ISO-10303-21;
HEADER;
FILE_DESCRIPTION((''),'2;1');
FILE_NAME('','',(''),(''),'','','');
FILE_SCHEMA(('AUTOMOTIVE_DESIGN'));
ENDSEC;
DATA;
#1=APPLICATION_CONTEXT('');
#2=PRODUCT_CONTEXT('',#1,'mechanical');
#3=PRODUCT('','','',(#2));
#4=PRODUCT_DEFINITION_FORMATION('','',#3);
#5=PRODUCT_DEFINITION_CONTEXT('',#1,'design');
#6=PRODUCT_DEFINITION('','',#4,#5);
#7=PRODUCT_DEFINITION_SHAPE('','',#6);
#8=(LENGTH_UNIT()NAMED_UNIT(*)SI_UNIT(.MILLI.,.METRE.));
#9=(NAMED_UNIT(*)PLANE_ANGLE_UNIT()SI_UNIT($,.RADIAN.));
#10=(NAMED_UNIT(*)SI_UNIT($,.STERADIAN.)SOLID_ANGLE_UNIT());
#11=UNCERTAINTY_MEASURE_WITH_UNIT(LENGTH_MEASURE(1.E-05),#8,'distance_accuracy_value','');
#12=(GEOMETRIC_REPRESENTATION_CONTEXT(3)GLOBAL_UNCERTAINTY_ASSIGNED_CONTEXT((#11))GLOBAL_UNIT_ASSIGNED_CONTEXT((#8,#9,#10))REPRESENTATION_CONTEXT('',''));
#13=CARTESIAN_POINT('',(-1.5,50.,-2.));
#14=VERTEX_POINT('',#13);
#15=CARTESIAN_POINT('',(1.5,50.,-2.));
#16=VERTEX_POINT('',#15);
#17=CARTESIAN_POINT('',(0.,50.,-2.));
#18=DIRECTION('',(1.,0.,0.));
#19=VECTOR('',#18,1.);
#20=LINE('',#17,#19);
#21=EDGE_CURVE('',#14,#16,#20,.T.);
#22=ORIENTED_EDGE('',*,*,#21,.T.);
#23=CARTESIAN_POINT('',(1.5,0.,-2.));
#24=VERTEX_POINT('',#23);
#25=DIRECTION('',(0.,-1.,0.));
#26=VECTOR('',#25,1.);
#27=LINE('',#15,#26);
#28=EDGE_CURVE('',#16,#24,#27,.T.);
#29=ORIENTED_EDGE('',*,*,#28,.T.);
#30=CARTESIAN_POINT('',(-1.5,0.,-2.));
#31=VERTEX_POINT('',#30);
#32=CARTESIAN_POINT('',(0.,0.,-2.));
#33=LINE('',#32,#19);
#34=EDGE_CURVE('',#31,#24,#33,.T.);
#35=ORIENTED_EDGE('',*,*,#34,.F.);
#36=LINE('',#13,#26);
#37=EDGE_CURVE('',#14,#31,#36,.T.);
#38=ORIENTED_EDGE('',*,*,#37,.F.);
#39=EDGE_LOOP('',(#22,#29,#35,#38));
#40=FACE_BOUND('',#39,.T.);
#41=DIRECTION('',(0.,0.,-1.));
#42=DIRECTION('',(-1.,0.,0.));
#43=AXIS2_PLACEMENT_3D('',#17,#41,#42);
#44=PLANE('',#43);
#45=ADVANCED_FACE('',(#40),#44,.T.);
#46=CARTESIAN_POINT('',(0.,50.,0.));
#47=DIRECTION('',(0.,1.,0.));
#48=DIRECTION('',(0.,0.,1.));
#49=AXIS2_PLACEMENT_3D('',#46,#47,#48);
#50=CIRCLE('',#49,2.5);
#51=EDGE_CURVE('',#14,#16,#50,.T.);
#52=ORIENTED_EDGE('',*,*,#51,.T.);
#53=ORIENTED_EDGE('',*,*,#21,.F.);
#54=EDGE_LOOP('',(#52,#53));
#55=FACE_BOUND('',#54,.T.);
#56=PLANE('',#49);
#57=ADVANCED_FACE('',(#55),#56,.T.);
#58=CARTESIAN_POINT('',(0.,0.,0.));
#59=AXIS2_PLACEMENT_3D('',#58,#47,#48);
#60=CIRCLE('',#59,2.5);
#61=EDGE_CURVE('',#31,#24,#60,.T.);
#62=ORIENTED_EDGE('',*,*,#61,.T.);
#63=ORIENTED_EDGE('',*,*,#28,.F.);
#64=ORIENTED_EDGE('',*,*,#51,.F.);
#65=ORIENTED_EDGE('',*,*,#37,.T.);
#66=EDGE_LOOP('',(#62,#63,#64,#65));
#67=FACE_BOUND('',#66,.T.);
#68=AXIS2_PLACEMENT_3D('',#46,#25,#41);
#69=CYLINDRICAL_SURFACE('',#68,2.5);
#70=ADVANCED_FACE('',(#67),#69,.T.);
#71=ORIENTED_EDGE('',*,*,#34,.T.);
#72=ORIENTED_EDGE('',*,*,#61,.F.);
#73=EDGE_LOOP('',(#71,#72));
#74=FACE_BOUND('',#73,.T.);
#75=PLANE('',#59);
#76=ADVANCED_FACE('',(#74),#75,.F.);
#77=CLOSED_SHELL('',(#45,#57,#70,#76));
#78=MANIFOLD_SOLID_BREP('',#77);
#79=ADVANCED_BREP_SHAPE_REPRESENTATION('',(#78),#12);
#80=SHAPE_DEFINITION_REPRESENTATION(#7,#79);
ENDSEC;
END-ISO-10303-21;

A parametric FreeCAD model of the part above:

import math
import FreeCAD as App
import Part
import Sketcher

V = App.Vector
Q = App.Units.Quantity

doc = App.newDocument("Part")
params = doc.addObject("Spreadsheet::Sheet", "Params")
for row, (alias, value) in enumerate([
    ("sketch1_radius", "2.5 mm"),
    ("sketch1_width", "3 mm"),
    ("pad1_length", "50 mm"),
], start=1):
    params.set(f"A{row}", alias)
    params.set(f"B{row}", "=" + value)
    params.setAlias(f"B{row}", alias)

body = doc.addObject("PartDesign::Body", "Body")

# Sketch on XZ plane
sketch1 = body.newObject("Sketcher::SketchObject", "Sketch")
sketch1.AttachmentSupport = (doc.getObject("XZ_Plane"), [""])
sketch1.MapMode = "FlatFace"
sketch1.addGeometry([
    Part.ArcOfCircle(Part.Circle(V(0, 0, 0), V(0, 0, 1), 2.5), math.radians(90), math.radians(233.130102)),
    Part.ArcOfCircle(Part.Circle(V(0, 0, 0), V(0, 0, 1), 2.5), math.radians(0), math.radians(90)),
    Part.ArcOfCircle(Part.Circle(V(0, 0, 0), V(0, 0, 1), 2.5), math.radians(-53.130102), math.radians(0)),
    Part.LineSegment(V(1.5, -2, 0), V(-1.5, -2, 0)),
], False)
sketch1.addConstraint([
    Sketcher.Constraint("Tangent", 0, 1, 1, 2),
    Sketcher.Constraint("Tangent", 1, 1, 2, 2),
    Sketcher.Constraint("Coincident", 2, 1, 3, 1),
    Sketcher.Constraint("Coincident", 3, 2, 0, 2),
    Sketcher.Constraint("Horizontal", 3),
    Sketcher.Constraint("Coincident", 0, 3, -1, 1),
    Sketcher.Constraint("Coincident", 2, 3, -1, 1),
    Sketcher.Constraint("PointOnObject", 0, 1, -2),
    Sketcher.Constraint("PointOnObject", 1, 1, -1),
    Sketcher.Constraint("Radius", 0, Q("2.5 mm")),
    Sketcher.Constraint("DistanceX", 3, 2, 3, 1, Q("3 mm")),
])
sketch1.setExpression("Constraints[9]", "Params.sketch1_radius")
sketch1.setExpression("Constraints[10]", "Params.sketch1_width")
pad1 = body.newObject("PartDesign::Pad", "Pad")
pad1.Profile = sketch1
pad1.setExpression("Length", "Params.pad1_length")
pad1.Reversed = True

doc.recompute()
